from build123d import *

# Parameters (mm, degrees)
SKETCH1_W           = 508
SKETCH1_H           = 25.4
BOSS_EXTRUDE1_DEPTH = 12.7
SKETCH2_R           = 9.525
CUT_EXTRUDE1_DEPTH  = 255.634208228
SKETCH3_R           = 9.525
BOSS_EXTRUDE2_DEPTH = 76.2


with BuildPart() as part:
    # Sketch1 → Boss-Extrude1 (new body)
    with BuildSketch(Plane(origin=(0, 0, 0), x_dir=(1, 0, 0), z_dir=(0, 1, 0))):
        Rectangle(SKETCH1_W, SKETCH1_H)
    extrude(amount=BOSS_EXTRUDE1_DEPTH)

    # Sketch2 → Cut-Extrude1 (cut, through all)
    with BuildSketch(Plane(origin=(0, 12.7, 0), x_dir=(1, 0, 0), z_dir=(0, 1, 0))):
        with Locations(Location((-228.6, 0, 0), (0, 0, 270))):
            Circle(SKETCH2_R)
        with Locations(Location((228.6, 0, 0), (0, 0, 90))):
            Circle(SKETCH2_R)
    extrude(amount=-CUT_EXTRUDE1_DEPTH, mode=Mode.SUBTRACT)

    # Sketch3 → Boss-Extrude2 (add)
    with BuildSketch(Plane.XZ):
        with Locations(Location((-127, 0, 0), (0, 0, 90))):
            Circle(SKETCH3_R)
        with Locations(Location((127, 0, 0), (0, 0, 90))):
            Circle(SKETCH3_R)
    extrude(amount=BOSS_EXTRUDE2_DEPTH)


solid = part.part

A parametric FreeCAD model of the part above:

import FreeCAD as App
import Part
import Sketcher
Q = App.Units.Quantity


def add_polygon(sketch, points):
    """Adds a closed chain of lines whose ends are joined by coincident constraints."""
    first, n = sketch.GeometryCount, len(points)
    for a, b in zip(points, points[1:] + points[:1]):
        sketch.addGeometry(Part.LineSegment(App.Vector(*a, 0), App.Vector(*b, 0)), False)
    for i in range(n):
        sketch.addConstraint(Sketcher.Constraint("Coincident", first + i, 2, first + (i + 1) % n, 1))

doc = App.newDocument("Part")
body = doc.addObject("PartDesign::Body", "Body")

# Sketch on XZ plane
sketch1 = doc.addObject("Sketcher::SketchObject", "Sketch")
body.addObject(sketch1)
sketch1.AttachmentSupport = (doc.XZ_Plane, [""])
sketch1.MapMode = "FlatFace"
add_polygon(sketch1, [(-254, -12.7), (-254, 12.7), (254, 12.7), (254, -12.7)])  # lines 0-3
sketch1.addConstraint([
    Sketcher.Constraint("Vertical", 0),
    Sketcher.Constraint("Horizontal", 1),
    Sketcher.Constraint("Vertical", 2),
    Sketcher.Constraint("Horizontal", 3),
    Sketcher.Constraint("Symmetric", 0, 2, 2, 2, -1, 1),
    Sketcher.Constraint("DistanceX", 1, 1, 1, 2, Q("20 in")),
    Sketcher.Constraint("DistanceY", 0, 1, 0, 2, Q("1 in")),
])
pad1 = doc.addObject("PartDesign::Pad", "Pad")
body.addObject(pad1)
pad1.Profile = sketch1
pad1.Length = Q("0.5 in")
pad1.Reversed = True

# Sketch on XZ plane
sketch2 = doc.addObject("Sketcher::SketchObject", "Sketch001")
body.addObject(sketch2)
sketch2.AttachmentSupport = (doc.XZ_Plane, [""])
sketch2.MapMode = "FlatFace"
sketch2.AttachmentOffset = App.Placement(App.Vector(0, 0, -0.5 * 25.4), App.Rotation())
sketch2.addGeometry([
    Part.Circle(App.Vector(-228.6, 0, 0), App.Vector(0, 0, 1), 9.525),
    Part.Circle(App.Vector(228.6, 0, 0), App.Vector(0, 0, 1), 9.525),
], False)
sketch2.addConstraint([
    Sketcher.Constraint("Equal", 0, 1),
    Sketcher.Constraint("Symmetric", 0, 3, 1, 3, -1, 1),
    Sketcher.Constraint("PointOnObject", 0, 3, -1),
    Sketcher.Constraint("Diameter", 0, Q("0.75 in")),
    Sketcher.Constraint("DistanceX", 0, 3, -1, 1, Q("9 in")),
])
pocket1 = doc.addObject("PartDesign::Pocket", "Pocket")
body.addObject(pocket1)
pocket1.Profile = sketch2
pocket1.Type = "ThroughAll"
pocket1.Reversed = True

# Sketch on XZ plane
sketch3 = doc.addObject("Sketcher::SketchObject", "Sketch002")
body.addObject(sketch3)
sketch3.AttachmentSupport = (doc.XZ_Plane, [""])
sketch3.MapMode = "FlatFace"
sketch3.addGeometry([
    Part.Circle(App.Vector(-127, 0, 0), App.Vector(0, 0, 1), 9.525),
    Part.Circle(App.Vector(127, 0, 0), App.Vector(0, 0, 1), 9.525),
], False)
sketch3.addConstraint([
    Sketcher.Constraint("Equal", 0, 1),
    Sketcher.Constraint("Symmetric", 0, 3, 1, 3, -1, 1),
    Sketcher.Constraint("PointOnObject", 0, 3, -1),
    Sketcher.Constraint("Diameter", 0, Q("0.75 in")),
    Sketcher.Constraint("DistanceX", 0, 3, -1, 1, Q("5 in")),
])
pad2 = doc.addObject("PartDesign::Pad", "Pad001")
body.addObject(pad2)
pad2.Profile = sketch3
pad2.Length = Q("3 in")

doc.recompute()
